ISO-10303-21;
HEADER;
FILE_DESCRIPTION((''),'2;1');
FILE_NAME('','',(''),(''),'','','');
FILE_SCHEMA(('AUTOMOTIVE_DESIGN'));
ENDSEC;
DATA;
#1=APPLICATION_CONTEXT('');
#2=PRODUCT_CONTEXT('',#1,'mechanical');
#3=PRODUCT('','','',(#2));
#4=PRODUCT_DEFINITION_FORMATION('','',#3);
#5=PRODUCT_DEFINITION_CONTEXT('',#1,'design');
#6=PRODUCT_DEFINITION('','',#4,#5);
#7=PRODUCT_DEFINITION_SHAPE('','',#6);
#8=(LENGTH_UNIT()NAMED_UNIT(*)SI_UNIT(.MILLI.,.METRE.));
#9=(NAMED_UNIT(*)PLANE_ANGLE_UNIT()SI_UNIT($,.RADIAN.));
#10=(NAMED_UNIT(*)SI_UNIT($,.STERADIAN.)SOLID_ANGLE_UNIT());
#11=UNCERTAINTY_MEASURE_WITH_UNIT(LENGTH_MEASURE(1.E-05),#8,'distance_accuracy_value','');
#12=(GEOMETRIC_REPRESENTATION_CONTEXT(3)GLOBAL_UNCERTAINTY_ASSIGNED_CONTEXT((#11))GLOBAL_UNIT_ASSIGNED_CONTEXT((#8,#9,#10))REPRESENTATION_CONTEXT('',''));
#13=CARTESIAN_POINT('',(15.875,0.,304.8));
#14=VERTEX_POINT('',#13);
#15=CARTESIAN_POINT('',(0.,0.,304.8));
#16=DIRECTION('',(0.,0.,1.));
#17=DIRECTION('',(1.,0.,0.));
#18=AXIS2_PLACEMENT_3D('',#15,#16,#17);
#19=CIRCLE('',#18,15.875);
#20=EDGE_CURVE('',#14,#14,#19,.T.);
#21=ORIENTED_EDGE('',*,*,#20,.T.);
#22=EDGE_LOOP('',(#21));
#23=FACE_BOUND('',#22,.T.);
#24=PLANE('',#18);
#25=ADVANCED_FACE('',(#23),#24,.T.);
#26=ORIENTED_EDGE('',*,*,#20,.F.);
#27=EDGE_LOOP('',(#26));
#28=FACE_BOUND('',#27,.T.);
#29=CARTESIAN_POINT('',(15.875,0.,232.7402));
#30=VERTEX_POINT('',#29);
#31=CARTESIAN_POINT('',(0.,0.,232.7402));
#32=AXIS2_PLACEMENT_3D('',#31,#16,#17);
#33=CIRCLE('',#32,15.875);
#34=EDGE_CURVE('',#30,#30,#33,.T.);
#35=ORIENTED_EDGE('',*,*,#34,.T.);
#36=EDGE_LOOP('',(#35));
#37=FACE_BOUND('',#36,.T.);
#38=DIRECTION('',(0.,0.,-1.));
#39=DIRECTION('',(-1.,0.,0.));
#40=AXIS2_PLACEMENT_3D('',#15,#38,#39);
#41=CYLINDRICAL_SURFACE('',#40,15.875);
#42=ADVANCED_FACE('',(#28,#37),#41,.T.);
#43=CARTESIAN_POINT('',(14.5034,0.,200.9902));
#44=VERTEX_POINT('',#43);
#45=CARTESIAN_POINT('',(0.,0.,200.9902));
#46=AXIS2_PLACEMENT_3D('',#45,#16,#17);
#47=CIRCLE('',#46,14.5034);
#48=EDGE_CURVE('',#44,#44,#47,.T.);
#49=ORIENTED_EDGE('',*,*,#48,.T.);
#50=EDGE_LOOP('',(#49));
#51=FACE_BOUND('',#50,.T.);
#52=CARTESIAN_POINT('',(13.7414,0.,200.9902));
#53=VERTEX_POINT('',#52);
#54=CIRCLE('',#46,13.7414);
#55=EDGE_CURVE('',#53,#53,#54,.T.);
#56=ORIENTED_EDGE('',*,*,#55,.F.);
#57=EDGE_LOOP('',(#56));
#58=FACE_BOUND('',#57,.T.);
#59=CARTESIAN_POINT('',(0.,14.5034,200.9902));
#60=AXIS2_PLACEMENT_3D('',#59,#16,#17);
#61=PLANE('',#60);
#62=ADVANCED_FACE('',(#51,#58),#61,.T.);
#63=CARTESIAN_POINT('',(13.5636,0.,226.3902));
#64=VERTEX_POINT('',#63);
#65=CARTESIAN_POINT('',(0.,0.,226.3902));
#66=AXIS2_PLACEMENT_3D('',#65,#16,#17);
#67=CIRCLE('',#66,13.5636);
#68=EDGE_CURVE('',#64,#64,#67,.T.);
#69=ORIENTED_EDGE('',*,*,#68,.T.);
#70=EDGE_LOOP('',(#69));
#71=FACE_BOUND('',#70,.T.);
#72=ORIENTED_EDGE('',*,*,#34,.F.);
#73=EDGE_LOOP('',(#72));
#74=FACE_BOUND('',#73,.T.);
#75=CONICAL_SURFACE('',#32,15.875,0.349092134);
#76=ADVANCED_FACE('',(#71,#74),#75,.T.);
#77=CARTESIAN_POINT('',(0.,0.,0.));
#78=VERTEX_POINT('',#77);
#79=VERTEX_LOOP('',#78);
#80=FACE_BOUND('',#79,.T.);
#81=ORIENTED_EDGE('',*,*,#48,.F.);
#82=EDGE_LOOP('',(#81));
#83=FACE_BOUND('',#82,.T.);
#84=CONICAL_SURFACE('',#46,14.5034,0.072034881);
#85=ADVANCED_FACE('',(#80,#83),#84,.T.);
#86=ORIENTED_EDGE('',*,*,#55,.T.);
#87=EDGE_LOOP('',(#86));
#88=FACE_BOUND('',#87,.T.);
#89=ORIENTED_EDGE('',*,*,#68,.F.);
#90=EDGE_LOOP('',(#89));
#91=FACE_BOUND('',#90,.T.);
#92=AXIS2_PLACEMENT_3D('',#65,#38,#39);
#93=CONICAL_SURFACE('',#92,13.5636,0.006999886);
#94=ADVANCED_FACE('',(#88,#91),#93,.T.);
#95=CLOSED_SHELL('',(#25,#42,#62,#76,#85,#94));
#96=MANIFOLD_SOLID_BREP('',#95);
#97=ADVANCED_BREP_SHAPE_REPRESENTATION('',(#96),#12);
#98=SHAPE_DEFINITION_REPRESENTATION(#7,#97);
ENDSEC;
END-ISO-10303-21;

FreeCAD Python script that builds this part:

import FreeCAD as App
import Part
import Sketcher
from FreeCAD import Vector
Q = App.Units.Quantity

doc = App.newDocument("Part")
params = doc.addObject("Spreadsheet::Sheet", "Params")
for row, (alias, value) in enumerate([
    ("sketch1_diameter", "1.25 in"),
    ("pad1_length", "12 in"),
    ("sketch2_width", "0.03 in"),
    ("groove_angle", "360 deg"),
], start=1):
    params.set(f"A{row}", alias)
    params.set(f"B{row}", "=" + value)
    params.setAlias(f"B{row}", alias)

body = doc.addObject("PartDesign::Body", "Body")

sketch1 = body.newObject("Sketcher::SketchObject", "Sketch")
sketch1.AttachmentSupport = (doc.getObject("XY_Plane"), [""])
sketch1.MapMode = "FlatFace"
sketch1.addGeometry(Part.Circle(Vector(0, 0, 0), Vector(0, 0, 1), 15.875), False)
sketch1.addConstraint([
    Sketcher.Constraint("Coincident", 0, 3, -1, 1),
    Sketcher.Constraint("Diameter", 0, Q("1.25 in")),
])
sketch1.setExpression("Constraints[1]", "Params.sketch1_diameter")
pad1 = body.newObject("PartDesign::Pad", "Pad")
pad1.Profile = sketch1
pad1.setExpression("Length", "Params.pad1_length")

sketch2 = body.newObject("Sketcher::SketchObject", "Sketch001")
sketch2.AttachmentSupport = (doc.getObject("YZ_Plane"), [""])
sketch2.MapMode = "FlatFace"
sketch2.addGeometry([
    Part.LineSegment(Vector(14.5034, 200.9902, 0), Vector(0, 0, 0)),
    Part.LineSegment(Vector(0, 0, 0), Vector(0, -0.985251, 0)),
    Part.LineSegment(Vector(0, -0.985251, 0), Vector(31.694034, -2.194318, 0)),
    Part.LineSegment(Vector(31.694034, -2.194318, 0), Vector(31.694034, 232.7402, 0)),
    Part.LineSegment(Vector(31.694034, 232.7402, 0), Vector(15.875, 232.7402, 0)),
    Part.LineSegment(Vector(15.875, 232.7402, 0), Vector(13.5636, 226.3902, 0)),
    Part.LineSegment(Vector(13.5636, 226.3902, 0), Vector(13.7414, 200.9902, 0)),
    Part.LineSegment(Vector(13.7414, 200.9902, 0), Vector(14.5034, 200.9902, 0)),
], False)
sketch2.addConstraint([
    Sketcher.Constraint("Coincident", 0, 2, 1, 1),
    Sketcher.Constraint("Coincident", 1, 2, 2, 1),
    Sketcher.Constraint("Coincident", 2, 2, 3, 1),
    Sketcher.Constraint("Coincident", 3, 2, 4, 1),
    Sketcher.Constraint("Coincident", 4, 2, 5, 1),
    Sketcher.Constraint("Coincident", 5, 2, 6, 1),
    Sketcher.Constraint("Coincident", 6, 2, 7, 1),
    Sketcher.Constraint("Coincident", 7, 2, 0, 1),
    Sketcher.Constraint("Vertical", 1),
    Sketcher.Constraint("Vertical", 3),
    Sketcher.Constraint("Horizontal", 4),
    Sketcher.Constraint("Horizontal", 7),
    Sketcher.Constraint("Coincident", 0, 2, -1, 1),
    Sketcher.Constraint("DistanceY", 6, 2, 5, 2, Q("1 in")),
    Sketcher.Constraint("DistanceX", 7, 1, 7, 2, Q("0.03 in")),
    Sketcher.Constraint("DistanceY", 5, 2, 4, 2, Q("0.25 in")),
    Sketcher.Constraint("DistanceY", -1, 1, 3, 2, Q("9.163 in")),
    Sketcher.Constraint("DistanceX", -1, 1, 4, 2, Q("0.625 in")),
    Sketcher.Constraint("DistanceX", -1, 1, 5, 2, Q("0.534 in")),
    Sketcher.Constraint("DistanceX", -1, 1, 6, 2, Q("0.541 in")),
    Sketcher.Constraint("DistanceY", 1, 2, 1, 1, 0.985251),
    Sketcher.Constraint("DistanceY", 3, 1, 3, 2, 234.934518),
    Sketcher.Constraint("DistanceX", 4, 2, 4, 1, 15.819034),
])
sketch2.setExpression("Constraints[14]", "Params.sketch2_width")
groove = body.newObject("PartDesign::Groove", "Groove")
groove.Profile = sketch2
groove.ReferenceAxis = (sketch2, ["V_Axis"])
groove.setExpression("Angle", "Params.groove_angle")

doc.recompute()
